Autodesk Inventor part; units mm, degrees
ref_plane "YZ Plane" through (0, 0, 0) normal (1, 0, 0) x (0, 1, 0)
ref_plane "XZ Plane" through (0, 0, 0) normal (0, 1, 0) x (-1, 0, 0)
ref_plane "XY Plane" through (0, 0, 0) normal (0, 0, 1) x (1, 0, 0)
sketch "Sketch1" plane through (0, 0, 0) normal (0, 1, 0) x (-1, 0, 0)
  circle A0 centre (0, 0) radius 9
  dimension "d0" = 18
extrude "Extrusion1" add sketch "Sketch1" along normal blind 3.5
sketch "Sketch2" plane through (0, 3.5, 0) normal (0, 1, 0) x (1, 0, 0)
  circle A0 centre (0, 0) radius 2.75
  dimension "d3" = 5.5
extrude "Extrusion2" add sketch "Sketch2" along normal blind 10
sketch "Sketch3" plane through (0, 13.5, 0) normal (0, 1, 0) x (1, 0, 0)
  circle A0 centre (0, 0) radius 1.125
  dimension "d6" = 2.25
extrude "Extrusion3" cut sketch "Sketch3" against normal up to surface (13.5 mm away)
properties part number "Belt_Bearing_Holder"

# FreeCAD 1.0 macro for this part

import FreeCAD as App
import Part
import Sketcher
from FreeCAD import Vector

doc = App.newDocument("Part")
params = doc.addObject("Spreadsheet::Sheet", "Params")
for row, (alias, value) in enumerate([
    ("sketch1_diameter", "18 mm"),
    ("pad1_length", "3.5 mm"),
    ("sketch2_diameter", "5.5 mm"),
    ("pad2_length", "10 mm"),
    ("sketch3_diameter", "2.25 mm"),
    ("pocket1_length", "13.5 mm"),
], start=1):
    params.set(f"A{row}", alias)
    params.set(f"B{row}", "=" + value)
    params.setAlias(f"B{row}", alias)

body = doc.addObject("PartDesign::Body", "Body")

sketch1 = body.newObject("Sketcher::SketchObject", "Sketch")
sketch1.AttachmentSupport = (doc.getObject("XZ_Plane"), [""])
sketch1.MapMode = "FlatFace"
sketch1.addGeometry(Part.Circle(Vector(0, 0, 0), Vector(0, 0, 1), 9), False)
sketch1.addConstraint([
    Sketcher.Constraint("Coincident", 0, 3, -1, 1),
    Sketcher.Constraint("Diameter", 0, 18.0),
])
sketch1.setExpression("Constraints[1]", "Params.sketch1_diameter")
pad1 = body.newObject("PartDesign::Pad", "Pad")
pad1.Profile = sketch1
pad1.setExpression("Length", "Params.pad1_length")
pad1.Reversed = True

sketch2 = body.newObject("Sketcher::SketchObject", "Sketch001")
sketch2.AttachmentSupport = (doc.getObject("XZ_Plane"), [""])
sketch2.MapMode = "FlatFace"
sketch2.AttachmentOffset = App.Placement(Vector(0, 0, -3.5), App.Rotation())
sketch2.addGeometry(Part.Circle(Vector(0, 0, 0), Vector(0, 0, 1), 2.75), False)
sketch2.addConstraint([
    Sketcher.Constraint("Coincident", 0, 3, -1, 1),
    Sketcher.Constraint("Diameter", 0, 5.5),
])
sketch2.setExpression("Constraints[1]", "Params.sketch2_diameter")
pad2 = body.newObject("PartDesign::Pad", "Pad001")
pad2.Profile = sketch2
pad2.setExpression("Length", "Params.pad2_length")
pad2.Reversed = True

sketch3 = body.newObject("Sketcher::SketchObject", "Sketch002")
sketch3.AttachmentSupport = (doc.getObject("XZ_Plane"), [""])
sketch3.MapMode = "FlatFace"
sketch3.AttachmentOffset = App.Placement(Vector(0, 0, -13.5), App.Rotation())
sketch3.addGeometry(Part.Circle(Vector(0, 0, 0), Vector(0, 0, 1), 1.125), False)
sketch3.addConstraint([
    Sketcher.Constraint("Coincident", 0, 3, -1, 1),
    Sketcher.Constraint("Diameter", 0, 2.25),
])
sketch3.setExpression("Constraints[1]", "Params.sketch3_diameter")
pocket1 = body.newObject("PartDesign::Pocket", "Pocket")
pocket1.Profile = sketch3
pocket1.setExpression("Length", "Params.pocket1_length")
pocket1.Reversed = True

doc.recompute()
